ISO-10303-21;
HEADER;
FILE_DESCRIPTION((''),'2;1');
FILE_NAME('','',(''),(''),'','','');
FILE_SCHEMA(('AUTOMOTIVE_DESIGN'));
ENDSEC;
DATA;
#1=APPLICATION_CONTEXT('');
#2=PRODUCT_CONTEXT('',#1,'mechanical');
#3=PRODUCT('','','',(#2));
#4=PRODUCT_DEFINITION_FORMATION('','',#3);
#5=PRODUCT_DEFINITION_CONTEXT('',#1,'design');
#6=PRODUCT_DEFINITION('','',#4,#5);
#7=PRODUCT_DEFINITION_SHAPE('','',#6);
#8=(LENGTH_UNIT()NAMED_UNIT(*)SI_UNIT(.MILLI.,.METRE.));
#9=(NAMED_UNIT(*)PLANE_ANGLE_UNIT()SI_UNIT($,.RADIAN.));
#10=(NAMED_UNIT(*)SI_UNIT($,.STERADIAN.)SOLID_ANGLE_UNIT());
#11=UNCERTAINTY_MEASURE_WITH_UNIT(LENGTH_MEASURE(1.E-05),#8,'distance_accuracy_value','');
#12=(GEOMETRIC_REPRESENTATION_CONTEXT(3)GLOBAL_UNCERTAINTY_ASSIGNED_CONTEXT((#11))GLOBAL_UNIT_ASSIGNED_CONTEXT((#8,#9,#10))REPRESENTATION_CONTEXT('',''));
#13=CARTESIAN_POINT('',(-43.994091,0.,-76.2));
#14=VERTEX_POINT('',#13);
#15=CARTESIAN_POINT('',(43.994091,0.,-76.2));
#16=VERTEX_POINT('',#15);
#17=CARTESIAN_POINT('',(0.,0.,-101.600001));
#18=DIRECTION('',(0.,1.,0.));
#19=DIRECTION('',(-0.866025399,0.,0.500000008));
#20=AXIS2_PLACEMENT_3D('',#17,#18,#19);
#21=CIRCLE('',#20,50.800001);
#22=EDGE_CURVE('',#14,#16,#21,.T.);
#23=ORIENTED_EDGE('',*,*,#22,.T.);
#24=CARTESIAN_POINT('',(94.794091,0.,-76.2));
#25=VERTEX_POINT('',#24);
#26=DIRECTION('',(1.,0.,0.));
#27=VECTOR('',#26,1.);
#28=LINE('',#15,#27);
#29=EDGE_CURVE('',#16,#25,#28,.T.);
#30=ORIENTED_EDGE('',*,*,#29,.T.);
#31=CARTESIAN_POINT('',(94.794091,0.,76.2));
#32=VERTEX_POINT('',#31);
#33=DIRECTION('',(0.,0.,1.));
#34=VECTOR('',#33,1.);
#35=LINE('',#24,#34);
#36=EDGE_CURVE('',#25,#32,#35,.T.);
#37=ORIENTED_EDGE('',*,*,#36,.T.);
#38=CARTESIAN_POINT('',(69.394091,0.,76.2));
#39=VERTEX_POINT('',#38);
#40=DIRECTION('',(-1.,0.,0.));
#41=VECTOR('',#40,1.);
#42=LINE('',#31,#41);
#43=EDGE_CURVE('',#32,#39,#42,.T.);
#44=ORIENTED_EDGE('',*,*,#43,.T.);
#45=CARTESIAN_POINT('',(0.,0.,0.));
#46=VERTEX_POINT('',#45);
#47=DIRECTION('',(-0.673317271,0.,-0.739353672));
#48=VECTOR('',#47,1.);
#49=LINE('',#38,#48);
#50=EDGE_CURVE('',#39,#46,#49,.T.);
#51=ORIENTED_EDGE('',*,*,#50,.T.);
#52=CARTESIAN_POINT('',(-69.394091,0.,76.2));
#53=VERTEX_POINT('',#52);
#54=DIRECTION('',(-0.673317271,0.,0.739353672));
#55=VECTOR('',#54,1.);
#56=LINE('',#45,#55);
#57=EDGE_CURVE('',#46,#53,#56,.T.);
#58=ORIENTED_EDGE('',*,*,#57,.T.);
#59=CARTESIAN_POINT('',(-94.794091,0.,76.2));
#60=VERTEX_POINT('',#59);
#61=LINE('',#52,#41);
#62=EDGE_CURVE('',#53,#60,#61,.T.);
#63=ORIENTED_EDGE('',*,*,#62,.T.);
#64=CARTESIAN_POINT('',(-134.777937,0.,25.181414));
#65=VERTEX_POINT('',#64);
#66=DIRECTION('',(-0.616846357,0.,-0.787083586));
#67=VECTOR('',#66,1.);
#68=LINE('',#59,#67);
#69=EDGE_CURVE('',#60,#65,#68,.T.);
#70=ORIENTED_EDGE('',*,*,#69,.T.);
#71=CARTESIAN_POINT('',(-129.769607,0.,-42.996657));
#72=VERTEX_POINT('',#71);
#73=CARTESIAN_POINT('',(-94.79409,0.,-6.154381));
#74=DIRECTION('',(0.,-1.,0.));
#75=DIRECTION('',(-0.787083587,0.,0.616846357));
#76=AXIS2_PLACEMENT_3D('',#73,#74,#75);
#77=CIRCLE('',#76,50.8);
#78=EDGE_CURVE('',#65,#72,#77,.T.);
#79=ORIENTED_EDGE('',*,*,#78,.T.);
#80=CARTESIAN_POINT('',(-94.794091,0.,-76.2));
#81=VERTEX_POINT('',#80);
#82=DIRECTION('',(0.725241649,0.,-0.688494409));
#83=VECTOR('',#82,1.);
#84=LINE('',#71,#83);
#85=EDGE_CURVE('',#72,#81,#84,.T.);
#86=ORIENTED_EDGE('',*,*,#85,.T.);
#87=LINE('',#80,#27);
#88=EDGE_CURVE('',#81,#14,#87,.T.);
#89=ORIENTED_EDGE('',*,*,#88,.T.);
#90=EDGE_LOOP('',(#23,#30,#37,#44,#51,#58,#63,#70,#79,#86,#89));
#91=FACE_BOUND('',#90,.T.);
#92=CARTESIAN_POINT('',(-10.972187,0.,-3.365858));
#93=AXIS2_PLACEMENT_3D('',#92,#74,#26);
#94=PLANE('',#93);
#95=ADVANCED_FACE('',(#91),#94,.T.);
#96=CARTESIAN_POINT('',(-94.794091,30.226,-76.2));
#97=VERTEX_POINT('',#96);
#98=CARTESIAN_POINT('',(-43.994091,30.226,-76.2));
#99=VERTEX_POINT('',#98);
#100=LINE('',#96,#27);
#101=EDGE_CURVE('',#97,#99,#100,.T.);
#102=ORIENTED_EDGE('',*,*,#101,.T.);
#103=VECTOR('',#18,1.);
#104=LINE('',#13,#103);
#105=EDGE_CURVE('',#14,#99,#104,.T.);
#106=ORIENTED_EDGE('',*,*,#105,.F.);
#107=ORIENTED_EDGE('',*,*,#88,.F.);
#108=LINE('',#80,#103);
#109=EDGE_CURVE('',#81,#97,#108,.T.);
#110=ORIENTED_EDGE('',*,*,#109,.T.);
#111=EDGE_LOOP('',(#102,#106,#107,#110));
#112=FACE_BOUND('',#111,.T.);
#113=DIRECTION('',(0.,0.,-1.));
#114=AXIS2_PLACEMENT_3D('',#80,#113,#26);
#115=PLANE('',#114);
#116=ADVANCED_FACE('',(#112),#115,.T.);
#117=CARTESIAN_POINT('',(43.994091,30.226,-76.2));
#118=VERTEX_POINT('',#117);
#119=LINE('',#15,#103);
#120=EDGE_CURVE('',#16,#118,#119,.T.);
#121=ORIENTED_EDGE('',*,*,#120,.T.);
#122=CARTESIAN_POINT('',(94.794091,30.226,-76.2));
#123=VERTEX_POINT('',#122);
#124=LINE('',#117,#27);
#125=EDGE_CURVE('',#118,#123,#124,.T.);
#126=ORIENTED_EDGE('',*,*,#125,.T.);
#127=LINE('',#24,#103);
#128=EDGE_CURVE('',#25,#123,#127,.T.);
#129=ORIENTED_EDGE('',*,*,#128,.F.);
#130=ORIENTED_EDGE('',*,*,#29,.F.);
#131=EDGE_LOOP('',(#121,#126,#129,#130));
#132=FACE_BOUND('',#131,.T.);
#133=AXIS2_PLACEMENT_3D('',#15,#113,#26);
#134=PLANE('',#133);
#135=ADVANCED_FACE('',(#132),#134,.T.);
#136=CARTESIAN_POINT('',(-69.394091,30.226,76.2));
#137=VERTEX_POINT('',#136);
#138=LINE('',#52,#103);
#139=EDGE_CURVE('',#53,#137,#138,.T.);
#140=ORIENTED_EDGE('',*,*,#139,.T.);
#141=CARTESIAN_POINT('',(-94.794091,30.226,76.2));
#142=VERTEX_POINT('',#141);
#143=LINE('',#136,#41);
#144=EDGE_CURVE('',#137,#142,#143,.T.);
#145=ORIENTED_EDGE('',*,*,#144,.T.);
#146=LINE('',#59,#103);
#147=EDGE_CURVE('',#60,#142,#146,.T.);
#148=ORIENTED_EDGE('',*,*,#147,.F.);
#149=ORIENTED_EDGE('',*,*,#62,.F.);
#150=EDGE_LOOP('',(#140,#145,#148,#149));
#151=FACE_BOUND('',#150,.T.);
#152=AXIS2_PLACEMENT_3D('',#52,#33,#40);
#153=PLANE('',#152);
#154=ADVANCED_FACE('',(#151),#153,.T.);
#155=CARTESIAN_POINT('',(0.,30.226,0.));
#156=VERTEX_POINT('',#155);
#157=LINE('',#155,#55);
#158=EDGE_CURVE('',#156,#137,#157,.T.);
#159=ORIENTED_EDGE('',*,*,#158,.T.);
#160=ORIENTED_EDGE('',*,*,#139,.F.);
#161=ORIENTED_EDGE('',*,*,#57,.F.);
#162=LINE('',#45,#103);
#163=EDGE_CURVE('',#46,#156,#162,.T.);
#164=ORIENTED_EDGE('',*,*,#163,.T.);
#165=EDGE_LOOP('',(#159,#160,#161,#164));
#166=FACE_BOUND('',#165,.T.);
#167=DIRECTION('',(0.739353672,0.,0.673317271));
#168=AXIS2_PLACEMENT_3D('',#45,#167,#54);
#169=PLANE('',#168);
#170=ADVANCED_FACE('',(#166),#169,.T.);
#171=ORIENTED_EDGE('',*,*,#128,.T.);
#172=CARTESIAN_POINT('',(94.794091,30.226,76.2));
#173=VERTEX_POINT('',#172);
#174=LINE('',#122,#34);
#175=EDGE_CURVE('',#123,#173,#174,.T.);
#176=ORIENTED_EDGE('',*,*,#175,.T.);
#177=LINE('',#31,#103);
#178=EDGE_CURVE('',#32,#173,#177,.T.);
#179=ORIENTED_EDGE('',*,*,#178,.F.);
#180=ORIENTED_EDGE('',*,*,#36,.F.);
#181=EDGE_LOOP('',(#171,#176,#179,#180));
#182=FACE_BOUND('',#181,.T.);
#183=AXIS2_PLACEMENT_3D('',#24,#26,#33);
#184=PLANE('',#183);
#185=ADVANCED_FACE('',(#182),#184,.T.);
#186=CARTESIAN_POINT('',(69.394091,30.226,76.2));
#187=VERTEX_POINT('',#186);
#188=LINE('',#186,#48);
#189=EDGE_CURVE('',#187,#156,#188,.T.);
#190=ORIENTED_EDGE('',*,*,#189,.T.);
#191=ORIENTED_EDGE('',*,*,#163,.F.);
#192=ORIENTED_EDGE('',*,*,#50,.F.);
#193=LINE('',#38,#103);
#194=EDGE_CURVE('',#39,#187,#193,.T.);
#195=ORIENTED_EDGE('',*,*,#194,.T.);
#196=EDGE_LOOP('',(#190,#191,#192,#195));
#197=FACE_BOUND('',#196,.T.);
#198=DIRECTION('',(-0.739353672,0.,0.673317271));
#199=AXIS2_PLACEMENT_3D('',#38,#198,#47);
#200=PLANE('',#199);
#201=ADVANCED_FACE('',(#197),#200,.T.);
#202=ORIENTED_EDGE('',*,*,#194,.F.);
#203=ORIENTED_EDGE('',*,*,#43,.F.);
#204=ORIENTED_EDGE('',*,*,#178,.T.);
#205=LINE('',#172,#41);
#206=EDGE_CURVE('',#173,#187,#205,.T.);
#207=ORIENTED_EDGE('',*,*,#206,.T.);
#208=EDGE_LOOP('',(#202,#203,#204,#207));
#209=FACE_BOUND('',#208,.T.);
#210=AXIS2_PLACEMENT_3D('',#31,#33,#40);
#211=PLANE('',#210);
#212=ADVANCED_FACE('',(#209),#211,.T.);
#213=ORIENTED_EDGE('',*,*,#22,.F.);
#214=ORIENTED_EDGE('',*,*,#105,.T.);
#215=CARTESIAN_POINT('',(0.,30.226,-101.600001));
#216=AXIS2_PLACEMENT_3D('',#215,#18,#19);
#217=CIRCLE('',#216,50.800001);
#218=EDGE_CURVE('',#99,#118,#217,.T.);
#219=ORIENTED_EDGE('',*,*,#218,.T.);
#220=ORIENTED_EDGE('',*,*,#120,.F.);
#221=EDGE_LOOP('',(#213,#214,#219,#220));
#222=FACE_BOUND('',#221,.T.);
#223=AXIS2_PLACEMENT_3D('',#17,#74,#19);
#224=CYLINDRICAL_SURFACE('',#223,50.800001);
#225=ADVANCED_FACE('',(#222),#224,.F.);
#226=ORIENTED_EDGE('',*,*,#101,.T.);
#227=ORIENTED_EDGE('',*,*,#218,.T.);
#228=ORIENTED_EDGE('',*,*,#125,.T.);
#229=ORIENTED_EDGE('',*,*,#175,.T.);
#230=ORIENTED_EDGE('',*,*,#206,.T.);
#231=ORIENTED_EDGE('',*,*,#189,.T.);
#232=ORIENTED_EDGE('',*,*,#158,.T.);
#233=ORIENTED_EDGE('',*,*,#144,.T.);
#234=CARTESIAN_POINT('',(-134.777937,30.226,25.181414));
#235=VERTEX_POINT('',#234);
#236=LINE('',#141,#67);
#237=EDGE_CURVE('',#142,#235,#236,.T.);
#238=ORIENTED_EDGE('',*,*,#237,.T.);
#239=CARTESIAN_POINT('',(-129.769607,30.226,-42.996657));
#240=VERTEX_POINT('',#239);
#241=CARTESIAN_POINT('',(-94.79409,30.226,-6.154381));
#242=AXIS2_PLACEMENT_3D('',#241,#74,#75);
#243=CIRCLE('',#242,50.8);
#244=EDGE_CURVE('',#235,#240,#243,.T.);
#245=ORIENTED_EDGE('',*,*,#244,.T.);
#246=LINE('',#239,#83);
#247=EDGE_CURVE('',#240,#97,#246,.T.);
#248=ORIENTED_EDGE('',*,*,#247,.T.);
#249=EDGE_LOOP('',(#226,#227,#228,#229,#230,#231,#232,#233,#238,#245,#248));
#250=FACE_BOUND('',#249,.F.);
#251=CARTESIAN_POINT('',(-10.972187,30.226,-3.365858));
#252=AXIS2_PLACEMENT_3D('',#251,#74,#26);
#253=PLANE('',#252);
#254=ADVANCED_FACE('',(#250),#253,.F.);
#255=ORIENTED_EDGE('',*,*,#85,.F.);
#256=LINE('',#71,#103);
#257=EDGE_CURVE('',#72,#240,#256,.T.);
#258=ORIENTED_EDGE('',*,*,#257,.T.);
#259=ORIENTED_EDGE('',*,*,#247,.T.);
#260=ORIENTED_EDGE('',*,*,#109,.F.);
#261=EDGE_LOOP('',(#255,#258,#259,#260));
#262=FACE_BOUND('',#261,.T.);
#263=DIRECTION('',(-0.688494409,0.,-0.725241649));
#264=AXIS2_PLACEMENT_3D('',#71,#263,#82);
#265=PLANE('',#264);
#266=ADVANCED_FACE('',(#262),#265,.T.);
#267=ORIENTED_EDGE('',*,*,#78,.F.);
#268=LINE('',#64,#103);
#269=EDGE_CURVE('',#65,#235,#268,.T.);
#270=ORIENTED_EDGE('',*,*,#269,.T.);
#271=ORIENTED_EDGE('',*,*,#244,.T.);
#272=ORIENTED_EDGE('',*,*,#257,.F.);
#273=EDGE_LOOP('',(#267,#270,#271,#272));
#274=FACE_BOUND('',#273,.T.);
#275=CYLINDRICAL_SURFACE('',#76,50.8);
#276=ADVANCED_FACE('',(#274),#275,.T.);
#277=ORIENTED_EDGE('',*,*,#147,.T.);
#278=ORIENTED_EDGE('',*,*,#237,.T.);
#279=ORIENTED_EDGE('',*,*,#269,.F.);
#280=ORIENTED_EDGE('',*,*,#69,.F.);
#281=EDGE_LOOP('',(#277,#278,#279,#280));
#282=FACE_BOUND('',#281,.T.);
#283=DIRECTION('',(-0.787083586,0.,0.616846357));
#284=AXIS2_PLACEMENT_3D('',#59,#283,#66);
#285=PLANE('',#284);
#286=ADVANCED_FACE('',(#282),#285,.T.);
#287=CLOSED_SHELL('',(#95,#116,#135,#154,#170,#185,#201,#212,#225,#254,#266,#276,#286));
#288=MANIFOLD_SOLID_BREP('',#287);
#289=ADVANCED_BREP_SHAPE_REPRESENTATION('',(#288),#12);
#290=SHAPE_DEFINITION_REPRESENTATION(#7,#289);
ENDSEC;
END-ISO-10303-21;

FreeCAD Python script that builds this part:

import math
import FreeCAD as App
import Part
import Sketcher
from FreeCAD import Vector
Q = App.Units.Quantity

doc = App.newDocument("Part")
params = doc.addObject("Spreadsheet::Sheet", "Params")
for row, (alias, value) in enumerate([
    ("sketch1_radius", "2 in"),
    ("sketch1_width", "1 in"),
    ("sketch1_width2", "2 in"),
    ("sketch1_height", "6 in"),
    ("pad1_length", "1.19 in"),
], start=1):
    params.set(f"A{row}", alias)
    params.set(f"B{row}", "=" + value)
    params.setAlias(f"B{row}", alias)

body = doc.addObject("PartDesign::Body", "Body")

sketch1 = doc.addObject("Sketcher::SketchObject", "Sketch")
body.addObject(sketch1)
sketch1.AttachmentSupport = (doc.XZ_Plane, [""])
sketch1.MapMode = "FlatFace"
sketch1.addGeometry(Part.LineSegment(Vector(69, 76, 0), Vector(0, 0, 0)), False)
sketch1.addGeometry(Part.LineSegment(Vector(0, 0, 0), Vector(-69, 76, 0)), False)
sketch1.addGeometry(Part.LineSegment(Vector(-69, 76, 0), Vector(-95, 76, 0)), False)
sketch1.addGeometry(Part.LineSegment(Vector(-95, 76, 0), Vector(-135, 25, 0)), False)
sketch1.addGeometry(Part.ArcOfCircle(Part.Circle(Vector(-95, -6, 0), Vector(0, 0, 1), 51), math.radians(142), math.radians(226)), False)
sketch1.addGeometry(Part.LineSegment(Vector(-130, -43, 0), Vector(-95, -76, 0)), False)
sketch1.addGeometry(Part.LineSegment(Vector(-95, -76, 0), Vector(-44, -76, 0)), False)
sketch1.addGeometry(Part.ArcOfCircle(Part.Circle(Vector(0, -102, 0), Vector(0, 0, 1), 51), math.radians(30), math.radians(150)), False)
sketch1.addGeometry(Part.LineSegment(Vector(44, -76, 0), Vector(95, -76, 0)), False)
sketch1.addGeometry(Part.LineSegment(Vector(95, -76, 0), Vector(95, 76, 0)), False)
sketch1.addGeometry(Part.LineSegment(Vector(95, 76, 0), Vector(69, 76, 0)), False)
sketch1.addConstraint(Sketcher.Constraint("Coincident", 0, 2, 1, 1))
sketch1.addConstraint(Sketcher.Constraint("Coincident", 1, 2, 2, 1))
sketch1.addConstraint(Sketcher.Constraint("Coincident", 2, 2, 3, 1))
sketch1.addConstraint(Sketcher.Constraint("Tangent", 3, 2, 4, 1))
sketch1.addConstraint(Sketcher.Constraint("Tangent", 4, 2, 5, 1))
sketch1.addConstraint(Sketcher.Constraint("Coincident", 5, 2, 6, 1))
sketch1.addConstraint(Sketcher.Constraint("Coincident", 6, 2, 7, 2))
sketch1.addConstraint(Sketcher.Constraint("Coincident", 7, 1, 8, 1))
sketch1.addConstraint(Sketcher.Constraint("Coincident", 8, 2, 9, 1))
sketch1.addConstraint(Sketcher.Constraint("Coincident", 9, 2, 10, 1))
sketch1.addConstraint(Sketcher.Constraint("Coincident", 10, 2, 0, 1))
sketch1.addConstraint(Sketcher.Constraint("Horizontal", 2))
sketch1.addConstraint(Sketcher.Constraint("Horizontal", 6))
sketch1.addConstraint(Sketcher.Constraint("Horizontal", 8))
sketch1.addConstraint(Sketcher.Constraint("Vertical", 9))
sketch1.addConstraint(Sketcher.Constraint("Horizontal", 10))
sketch1.addConstraint(Sketcher.Constraint("Coincident", 0, 2, -1, 1))
sketch1.addConstraint(Sketcher.Constraint("Equal", 4, 7))
sketch1.addConstraint(Sketcher.Constraint("Symmetric", 2, 2, 8, 2, -1, 1))
sketch1.addConstraint(Sketcher.Constraint("Symmetric", 5, 2, 9, 2, -1, 1))
sketch1.addConstraint(Sketcher.Constraint("Symmetric", 6, 2, 7, 1, -2))
sketch1.addConstraint(Sketcher.Constraint("Vertical", 4, 3, 2, 2))
sketch1.addConstraint(Sketcher.Constraint("Equal", 2, 10))
sketch1.addConstraint(Sketcher.Constraint("Radius", 4, Q("2 in")))
sketch1.addConstraint(Sketcher.Constraint("DistanceX", 2, 2, 2, 1, Q("1 in")))
sketch1.addConstraint(Sketcher.Constraint("DistanceX", 6, 1, 6, 2, Q("2 in")))
sketch1.addConstraint(Sketcher.Constraint("DistanceY", 9, 1, 9, 2, Q("6 in")))
sketch1.addConstraint(Sketcher.Constraint("DistanceY", 7, 3, -1, 1, Q("4 in")))
sketch1.addConstraint(Sketcher.Constraint("Distance", 3, Q("64.819781 mm")))
sketch1.setExpression("Constraints[23]", "Params.sketch1_radius")
sketch1.setExpression("Constraints[24]", "Params.sketch1_width")
sketch1.setExpression("Constraints[25]", "Params.sketch1_width2")
sketch1.setExpression("Constraints[26]", "Params.sketch1_height")
pad1 = doc.addObject("PartDesign::Pad", "Pad")
body.addObject(pad1)
pad1.Profile = sketch1
pad1.setExpression("Length", "Params.pad1_length")
pad1.Reversed = True

doc.recompute()
